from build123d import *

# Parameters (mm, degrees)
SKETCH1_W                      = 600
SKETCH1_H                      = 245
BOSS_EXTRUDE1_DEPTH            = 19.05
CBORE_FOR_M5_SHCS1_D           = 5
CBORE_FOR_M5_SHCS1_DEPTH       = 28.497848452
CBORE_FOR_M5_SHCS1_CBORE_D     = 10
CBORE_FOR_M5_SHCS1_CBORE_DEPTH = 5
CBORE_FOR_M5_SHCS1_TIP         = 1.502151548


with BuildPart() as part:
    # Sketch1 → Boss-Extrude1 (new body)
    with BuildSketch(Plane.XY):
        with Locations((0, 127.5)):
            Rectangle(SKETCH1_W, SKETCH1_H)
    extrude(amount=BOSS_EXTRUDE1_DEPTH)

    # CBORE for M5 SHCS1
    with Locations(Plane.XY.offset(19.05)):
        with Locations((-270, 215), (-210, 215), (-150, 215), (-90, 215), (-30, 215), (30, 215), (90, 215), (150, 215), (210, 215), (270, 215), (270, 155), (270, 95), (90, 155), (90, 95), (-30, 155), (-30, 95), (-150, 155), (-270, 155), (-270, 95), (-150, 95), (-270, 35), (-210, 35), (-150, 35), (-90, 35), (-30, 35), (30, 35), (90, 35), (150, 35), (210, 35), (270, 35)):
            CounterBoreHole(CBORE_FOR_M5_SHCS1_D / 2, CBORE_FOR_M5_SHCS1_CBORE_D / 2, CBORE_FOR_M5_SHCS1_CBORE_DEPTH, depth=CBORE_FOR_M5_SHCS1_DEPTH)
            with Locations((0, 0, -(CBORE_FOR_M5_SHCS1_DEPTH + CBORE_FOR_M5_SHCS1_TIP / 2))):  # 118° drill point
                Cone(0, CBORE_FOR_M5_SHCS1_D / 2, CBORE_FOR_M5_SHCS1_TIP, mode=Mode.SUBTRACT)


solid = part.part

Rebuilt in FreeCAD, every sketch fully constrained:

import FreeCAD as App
import Part
import Sketcher
Q = App.Units.Quantity


def add_polygon(sketch, points):
    """Adds a closed chain of lines whose ends are joined by coincident constraints."""
    first, n = sketch.GeometryCount, len(points)
    for a, b in zip(points, points[1:] + points[:1]):
        sketch.addGeometry(Part.LineSegment(App.Vector(*a, 0), App.Vector(*b, 0)), False)
    for i in range(n):
        sketch.addConstraint(Sketcher.Constraint("Coincident", first + i, 2, first + (i + 1) % n, 1))

doc = App.newDocument("Part")
body = doc.addObject("PartDesign::Body", "Body")

# Sketch on XY plane
sketch1 = doc.addObject("Sketcher::SketchObject", "Sketch")
body.addObject(sketch1)
sketch1.AttachmentSupport = (doc.XY_Plane, [""])
sketch1.MapMode = "FlatFace"
add_polygon(sketch1, [(-300, 250), (-300, 5), (300, 5), (300, 250)])  # lines 0-3
sketch1.addConstraint([
    Sketcher.Constraint("Vertical", 0),
    Sketcher.Constraint("Horizontal", 1),
    Sketcher.Constraint("Vertical", 2),
    Sketcher.Constraint("Horizontal", 3),
    Sketcher.Constraint("DistanceX", 1, 1, 1, 2, Q("600 mm")),
    Sketcher.Constraint("DistanceY", 0, 2, 0, 1, Q("245 mm")),
    Sketcher.Constraint("DistanceX", 0, 2, -1, 1, Q("300 mm")),
    Sketcher.Constraint("DistanceY", -1, 1, 0, 2, Q("5 mm")),
])
pad1 = doc.addObject("PartDesign::Pad", "Pad")
body.addObject(pad1)
pad1.Profile = sketch1
pad1.Length = 19.05

# Sketch on XY plane
sketch2 = doc.addObject("Sketcher::SketchObject", "Sketch001")
body.addObject(sketch2)
sketch2.AttachmentSupport = (doc.XY_Plane, [""])
sketch2.MapMode = "FlatFace"
sketch2.AttachmentOffset = App.Placement(App.Vector(0, 0, 19.05), App.Rotation())
sketch2.addGeometry([
    Part.Circle(App.Vector(-270, 215, 0), App.Vector(0, 0, 1), 2.5),  # 0
    Part.Circle(App.Vector(-210, 215, 0), App.Vector(0, 0, 1), 2.5),  # 1
    Part.Circle(App.Vector(-150, 215, 0), App.Vector(0, 0, 1), 2.5),  # 2
    Part.Circle(App.Vector(-90, 215, 0), App.Vector(0, 0, 1), 2.5),  # 3
    Part.Circle(App.Vector(-30, 215, 0), App.Vector(0, 0, 1), 2.5),  # 4
    Part.Circle(App.Vector(30, 215, 0), App.Vector(0, 0, 1), 2.5),  # 5
    Part.Circle(App.Vector(90, 215, 0), App.Vector(0, 0, 1), 2.5),  # 6
    Part.Circle(App.Vector(150, 215, 0), App.Vector(0, 0, 1), 2.5),  # 7
    Part.Circle(App.Vector(210, 215, 0), App.Vector(0, 0, 1), 2.5),  # 8
    Part.Circle(App.Vector(270, 215, 0), App.Vector(0, 0, 1), 2.5),  # 9
    Part.Circle(App.Vector(270, 155, 0), App.Vector(0, 0, 1), 2.5),  # 10
    Part.Circle(App.Vector(270, 95, 0), App.Vector(0, 0, 1), 2.5),  # 11
    Part.Circle(App.Vector(90, 155, 0), App.Vector(0, 0, 1), 2.5),  # 12
    Part.Circle(App.Vector(90, 95, 0), App.Vector(0, 0, 1), 2.5),  # 13
    Part.Circle(App.Vector(-30, 155, 0), App.Vector(0, 0, 1), 2.5),  # 14
    Part.Circle(App.Vector(-30, 95, 0), App.Vector(0, 0, 1), 2.5),  # 15
    Part.Circle(App.Vector(-150, 155, 0), App.Vector(0, 0, 1), 2.5),  # 16
    Part.Circle(App.Vector(-270, 155, 0), App.Vector(0, 0, 1), 2.5),  # 17
    Part.Circle(App.Vector(-270, 95, 0), App.Vector(0, 0, 1), 2.5),  # 18
    Part.Circle(App.Vector(-150, 95, 0), App.Vector(0, 0, 1), 2.5),  # 19
    Part.Circle(App.Vector(-270, 35, 0), App.Vector(0, 0, 1), 2.5),  # 20
    Part.Circle(App.Vector(-210, 35, 0), App.Vector(0, 0, 1), 2.5),  # 21
    Part.Circle(App.Vector(-150, 35, 0), App.Vector(0, 0, 1), 2.5),  # 22
    Part.Circle(App.Vector(-90, 35, 0), App.Vector(0, 0, 1), 2.5),  # 23
    Part.Circle(App.Vector(-30, 35, 0), App.Vector(0, 0, 1), 2.5),  # 24
    Part.Circle(App.Vector(30, 35, 0), App.Vector(0, 0, 1), 2.5),  # 25
    Part.Circle(App.Vector(90, 35, 0), App.Vector(0, 0, 1), 2.5),  # 26
    Part.Circle(App.Vector(150, 35, 0), App.Vector(0, 0, 1), 2.5),  # 27
    Part.Circle(App.Vector(210, 35, 0), App.Vector(0, 0, 1), 2.5),  # 28
    Part.Circle(App.Vector(270, 35, 0), App.Vector(0, 0, 1), 2.5),  # 29
], False)
sketch2.addConstraint([
    Sketcher.Constraint("Equal", 0, 1),
    Sketcher.Constraint("Equal", 1, 2),
    Sketcher.Constraint("Equal", 2, 3),
    Sketcher.Constraint("Equal", 3, 4),
    Sketcher.Constraint("Equal", 4, 5),
    Sketcher.Constraint("Equal", 5, 6),
    Sketcher.Constraint("Equal", 6, 7),
    Sketcher.Constraint("Equal", 7, 8),
    Sketcher.Constraint("Equal", 8, 9),
    Sketcher.Constraint("Equal", 9, 10),
    Sketcher.Constraint("Equal", 10, 11),
    Sketcher.Constraint("Equal", 11, 12),
    Sketcher.Constraint("Equal", 12, 13),
    Sketcher.Constraint("Equal", 13, 14),
    Sketcher.Constraint("Equal", 14, 15),
    Sketcher.Constraint("Equal", 15, 16),
    Sketcher.Constraint("Equal", 16, 17),
    Sketcher.Constraint("Equal", 17, 18),
    Sketcher.Constraint("Equal", 18, 19),
    Sketcher.Constraint("Equal", 19, 20),
    Sketcher.Constraint("Equal", 20, 21),
    Sketcher.Constraint("Equal", 21, 22),
    Sketcher.Constraint("Equal", 22, 23),
    Sketcher.Constraint("Equal", 23, 24),
    Sketcher.Constraint("Equal", 24, 25),
    Sketcher.Constraint("Equal", 25, 26),
    Sketcher.Constraint("Equal", 26, 27),
    Sketcher.Constraint("Equal", 27, 28),
    Sketcher.Constraint("Equal", 28, 29),
    Sketcher.Constraint("Symmetric", 4, 3, 5, 3, -2),
    Sketcher.Constraint("Symmetric", 3, 3, 6, 3, -2),
    Sketcher.Constraint("Symmetric", 2, 3, 7, 3, -2),
    Sketcher.Constraint("Symmetric", 1, 3, 8, 3, -2),
    Sketcher.Constraint("Symmetric", 0, 3, 9, 3, -2),
    Sketcher.Constraint("Symmetric", 10, 3, 17, 3, -2),
    Sketcher.Constraint("Symmetric", 11, 3, 18, 3, -2),
    Sketcher.Constraint("Symmetric", 24, 3, 25, 3, -2),
    Sketcher.Constraint("Symmetric", 23, 3, 26, 3, -2),
    Sketcher.Constraint("Symmetric", 22, 3, 27, 3, -2),
    Sketcher.Constraint("Symmetric", 21, 3, 28, 3, -2),
    Sketcher.Constraint("Symmetric", 20, 3, 29, 3, -2),
    Sketcher.Constraint("Horizontal", 0, 3, 1, 3),
    Sketcher.Constraint("Horizontal", 1, 3, 2, 3),
    Sketcher.Constraint("Horizontal", 2, 3, 3, 3),
    Sketcher.Constraint("Horizontal", 3, 3, 4, 3),
    Sketcher.Constraint("Horizontal", 10, 3, 12, 3),
    Sketcher.Constraint("Horizontal", 11, 3, 13, 3),
    Sketcher.Constraint("Horizontal", 12, 3, 14, 3),
    Sketcher.Constraint("Horizontal", 13, 3, 15, 3),
    Sketcher.Constraint("Horizontal", 14, 3, 16, 3),
    Sketcher.Constraint("Horizontal", 18, 3, 19, 3),
    Sketcher.Constraint("Horizontal", 20, 3, 21, 3),
    Sketcher.Constraint("Horizontal", 21, 3, 22, 3),
    Sketcher.Constraint("Horizontal", 22, 3, 23, 3),
    Sketcher.Constraint("Horizontal", 23, 3, 24, 3),
    Sketcher.Constraint("Vertical", 9, 3, 10, 3),
    Sketcher.Constraint("Vertical", 10, 3, 11, 3),
    Sketcher.Constraint("Vertical", 6, 3, 12, 3),
    Sketcher.Constraint("Vertical", 12, 3, 13, 3),
    Sketcher.Constraint("Vertical", 4, 3, 14, 3),
    Sketcher.Constraint("Vertical", 14, 3, 15, 3),
    Sketcher.Constraint("Vertical", 2, 3, 16, 3),
    Sketcher.Constraint("Vertical", 16, 3, 19, 3),
    Sketcher.Constraint("Vertical", 18, 3, 20, 3),
    Sketcher.Constraint("Vertical", 1, 3, 21, 3),
    Sketcher.Constraint("Vertical", 19, 3, 22, 3),
    Sketcher.Constraint("Vertical", 3, 3, 23, 3),
    Sketcher.Constraint("Vertical", 15, 3, 24, 3),
    Sketcher.Constraint("Diameter", 0, Q("5 mm")),
    Sketcher.Constraint("DistanceX", 0, 3, -1, 1, Q("270 mm")),
    Sketcher.Constraint("DistanceY", -1, 1, 0, 3, Q("215 mm")),
    Sketcher.Constraint("DistanceX", 1, 3, -1, 1, Q("210 mm")),
    Sketcher.Constraint("DistanceX", 2, 3, -1, 1, Q("150 mm")),
    Sketcher.Constraint("DistanceX", 3, 3, -1, 1, Q("90 mm")),
    Sketcher.Constraint("DistanceX", 4, 3, -1, 1, Q("30 mm")),
    Sketcher.Constraint("DistanceY", -1, 1, 10, 3, Q("155 mm")),
    Sketcher.Constraint("DistanceY", -1, 1, 11, 3, Q("95 mm")),
    Sketcher.Constraint("DistanceY", -1, 1, 20, 3, Q("35 mm")),
])
doc.recompute()
hole = doc.addObject("PartDesign::Hole", "Hole")
body.addObject(hole)
hole.Profile = sketch2
hole.ThreadType = "None"
hole.Diameter = 5
hole.DepthType = "Dimension"
hole.Depth = 28.497848
hole.DrillPoint = "Angled"
hole.DrillPointAngle = 118
hole.HoleCutType = "Counterbore"
hole.HoleCutDiameter = 10
hole.HoleCutDepth = 5

doc.recompute()
